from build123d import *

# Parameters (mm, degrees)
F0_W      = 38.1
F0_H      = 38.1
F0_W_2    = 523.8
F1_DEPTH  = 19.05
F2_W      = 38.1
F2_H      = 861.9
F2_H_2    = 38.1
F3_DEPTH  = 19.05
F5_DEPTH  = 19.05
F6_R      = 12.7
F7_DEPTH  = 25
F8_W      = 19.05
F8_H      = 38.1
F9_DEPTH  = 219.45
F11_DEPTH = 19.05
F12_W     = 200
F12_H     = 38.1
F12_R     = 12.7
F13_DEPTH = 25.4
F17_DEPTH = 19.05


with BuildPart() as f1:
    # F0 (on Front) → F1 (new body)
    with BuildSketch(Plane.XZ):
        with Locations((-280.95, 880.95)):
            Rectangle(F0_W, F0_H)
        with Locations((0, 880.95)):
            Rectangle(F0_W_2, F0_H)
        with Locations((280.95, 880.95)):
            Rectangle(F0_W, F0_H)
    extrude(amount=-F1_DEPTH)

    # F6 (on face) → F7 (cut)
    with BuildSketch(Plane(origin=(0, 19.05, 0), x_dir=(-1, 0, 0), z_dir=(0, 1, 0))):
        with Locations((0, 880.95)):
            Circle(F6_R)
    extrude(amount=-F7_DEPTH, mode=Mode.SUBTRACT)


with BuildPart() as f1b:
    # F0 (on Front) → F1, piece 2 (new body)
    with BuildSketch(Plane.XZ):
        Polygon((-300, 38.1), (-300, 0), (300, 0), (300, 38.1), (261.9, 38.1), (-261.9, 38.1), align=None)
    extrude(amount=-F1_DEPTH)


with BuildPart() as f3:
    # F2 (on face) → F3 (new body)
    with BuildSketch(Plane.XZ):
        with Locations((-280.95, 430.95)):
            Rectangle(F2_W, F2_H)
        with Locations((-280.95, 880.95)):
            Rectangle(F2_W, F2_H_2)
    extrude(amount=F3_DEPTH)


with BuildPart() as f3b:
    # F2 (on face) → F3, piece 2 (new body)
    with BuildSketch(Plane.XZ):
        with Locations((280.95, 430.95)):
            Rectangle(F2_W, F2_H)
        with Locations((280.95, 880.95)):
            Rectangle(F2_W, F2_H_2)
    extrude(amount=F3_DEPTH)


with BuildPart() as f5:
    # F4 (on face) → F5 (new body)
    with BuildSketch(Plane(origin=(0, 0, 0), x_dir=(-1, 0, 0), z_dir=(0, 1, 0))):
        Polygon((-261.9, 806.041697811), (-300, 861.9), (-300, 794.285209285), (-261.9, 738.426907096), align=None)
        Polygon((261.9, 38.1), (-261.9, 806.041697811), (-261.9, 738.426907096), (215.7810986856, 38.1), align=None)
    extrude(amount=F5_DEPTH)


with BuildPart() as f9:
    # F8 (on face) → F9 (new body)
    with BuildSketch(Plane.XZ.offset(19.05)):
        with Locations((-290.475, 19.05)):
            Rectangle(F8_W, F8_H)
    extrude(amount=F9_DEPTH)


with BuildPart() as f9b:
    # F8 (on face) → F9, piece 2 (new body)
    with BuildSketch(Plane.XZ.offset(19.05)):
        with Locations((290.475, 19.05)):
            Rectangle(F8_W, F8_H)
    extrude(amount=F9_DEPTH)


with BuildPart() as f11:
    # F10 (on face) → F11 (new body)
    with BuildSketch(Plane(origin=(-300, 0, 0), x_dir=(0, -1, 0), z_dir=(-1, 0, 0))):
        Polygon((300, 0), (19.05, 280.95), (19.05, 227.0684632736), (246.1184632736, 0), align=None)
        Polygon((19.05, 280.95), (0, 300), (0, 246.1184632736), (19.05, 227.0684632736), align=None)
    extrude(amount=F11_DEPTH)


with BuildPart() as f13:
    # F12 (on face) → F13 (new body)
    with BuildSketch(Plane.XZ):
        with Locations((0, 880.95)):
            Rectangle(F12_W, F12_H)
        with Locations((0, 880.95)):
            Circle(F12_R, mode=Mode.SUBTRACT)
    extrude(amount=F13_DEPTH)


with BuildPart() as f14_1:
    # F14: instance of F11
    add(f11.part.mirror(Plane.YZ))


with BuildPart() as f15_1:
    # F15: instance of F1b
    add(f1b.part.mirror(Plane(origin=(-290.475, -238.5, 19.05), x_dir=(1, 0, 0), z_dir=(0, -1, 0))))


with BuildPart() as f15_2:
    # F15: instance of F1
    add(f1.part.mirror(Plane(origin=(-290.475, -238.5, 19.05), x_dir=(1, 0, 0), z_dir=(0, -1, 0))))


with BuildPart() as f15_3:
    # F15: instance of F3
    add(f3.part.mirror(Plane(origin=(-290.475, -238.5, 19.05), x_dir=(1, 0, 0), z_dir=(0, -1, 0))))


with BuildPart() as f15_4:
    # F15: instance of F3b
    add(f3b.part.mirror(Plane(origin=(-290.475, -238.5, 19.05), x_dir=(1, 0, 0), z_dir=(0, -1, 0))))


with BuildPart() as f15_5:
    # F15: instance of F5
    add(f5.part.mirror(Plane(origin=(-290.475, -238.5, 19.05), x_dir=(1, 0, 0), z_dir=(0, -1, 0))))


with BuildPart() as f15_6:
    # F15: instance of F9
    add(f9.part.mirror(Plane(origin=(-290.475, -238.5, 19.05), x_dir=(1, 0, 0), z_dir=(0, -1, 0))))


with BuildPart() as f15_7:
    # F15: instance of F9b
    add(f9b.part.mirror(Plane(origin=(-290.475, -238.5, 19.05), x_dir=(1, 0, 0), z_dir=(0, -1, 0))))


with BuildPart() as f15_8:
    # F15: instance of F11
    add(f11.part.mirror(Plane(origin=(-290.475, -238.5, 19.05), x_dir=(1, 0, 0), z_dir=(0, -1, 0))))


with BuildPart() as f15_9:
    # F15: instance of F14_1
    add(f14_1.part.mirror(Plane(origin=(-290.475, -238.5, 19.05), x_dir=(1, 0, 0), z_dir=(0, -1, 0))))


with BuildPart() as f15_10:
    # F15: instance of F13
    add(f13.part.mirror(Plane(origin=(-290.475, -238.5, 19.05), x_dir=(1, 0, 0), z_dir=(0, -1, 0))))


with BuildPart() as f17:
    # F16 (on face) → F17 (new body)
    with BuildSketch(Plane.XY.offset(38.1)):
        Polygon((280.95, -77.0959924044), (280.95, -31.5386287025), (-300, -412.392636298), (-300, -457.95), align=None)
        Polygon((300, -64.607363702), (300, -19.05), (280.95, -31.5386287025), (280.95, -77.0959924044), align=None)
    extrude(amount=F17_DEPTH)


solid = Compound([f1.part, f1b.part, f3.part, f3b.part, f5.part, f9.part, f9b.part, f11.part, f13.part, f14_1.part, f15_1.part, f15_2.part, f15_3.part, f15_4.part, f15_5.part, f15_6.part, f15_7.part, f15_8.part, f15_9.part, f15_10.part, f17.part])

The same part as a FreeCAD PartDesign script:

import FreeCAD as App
import Part
import Sketcher

doc = App.newDocument("Part")
params = doc.addObject("Spreadsheet::Sheet", "Params")
for row, (alias, value) in enumerate([
    ("sketch1_width", "600 mm"),
    ("sketch1_height", "38.1 mm"),
    ("pad1_length", "19.05 mm"),
    ("sketch2_diameter", "25.4 mm"),
    ("pocket1_length", "25 mm"),
    ("sketch3_width", "600 mm"),
    ("sketch3_height", "38.1 mm"),
    ("pad2_length", "19.05 mm"),
    ("sketch4_height", "900 mm"),
    ("sketch4_width", "38.1 mm"),
    ("pad3_length", "19.05 mm"),
    ("sketch5_height", "900 mm"),
    ("sketch5_width", "38.1 mm"),
    ("pad4_length", "19.05 mm"),
    ("pad5_length", "19.05 mm"),
    ("sketch7_height", "38.1 mm"),
    ("sketch7_width", "19.05 mm"),
    ("pad6_length", "219.45 mm"),
    ("sketch8_height", "38.1 mm"),
    ("sketch8_width", "19.05 mm"),
    ("pad7_length", "219.45 mm"),
    ("pad8_length", "19.05 mm"),
    ("sketch10_diameter", "25.4 mm"),
    ("sketch10_width", "200 mm"),
    ("sketch10_height", "38.1 mm"),
    ("pad9_length", "25.4 mm"),
    ("pad10_length", "19.05 mm"),
], start=1):
    params.set(f"A{row}", alias)
    params.set(f"B{row}", "=" + value)
    params.setAlias(f"B{row}", alias)

body = doc.addObject("PartDesign::Body", "Body")

# Sketch on XZ plane
sketch1 = body.newObject("Sketcher::SketchObject", "Sketch")
sketch1.AttachmentSupport = (doc.getObject("XZ_Plane"), [""])
sketch1.MapMode = "FlatFace"
sketch1.addGeometry([
    Part.LineSegment(App.Vector(-300, 900, 0), App.Vector(-300, 861.9, 0)),
    Part.LineSegment(App.Vector(-300, 861.9, 0), App.Vector(300, 861.9, 0)),
    Part.LineSegment(App.Vector(300, 861.9, 0), App.Vector(300, 900, 0)),
    Part.LineSegment(App.Vector(300, 900, 0), App.Vector(-300, 900, 0)),
], False)
sketch1.addConstraint([
    Sketcher.Constraint("Coincident", 0, 2, 1, 1),
    Sketcher.Constraint("Coincident", 1, 2, 2, 1),
    Sketcher.Constraint("Coincident", 2, 2, 3, 1),
    Sketcher.Constraint("Coincident", 3, 2, 0, 1),
    Sketcher.Constraint("Vertical", 0),
    Sketcher.Constraint("Horizontal", 1),
    Sketcher.Constraint("Vertical", 2),
    Sketcher.Constraint("Horizontal", 3),
    Sketcher.Constraint("DistanceX", 1, 1, 1, 2, 600.0),
    Sketcher.Constraint("DistanceY", 0, 2, 0, 1, 38.1),
    Sketcher.Constraint("DistanceX", 0, 2, -1, 1, 300.0),
    Sketcher.Constraint("DistanceY", -1, 1, 2, 2, 900.0),
])
sketch1.setExpression("Constraints[8]", "Params.sketch1_width")
sketch1.setExpression("Constraints[9]", "Params.sketch1_height")
pad1 = body.newObject("PartDesign::Pad", "Pad")
pad1.Profile = sketch1
pad1.setExpression("Length", "Params.pad1_length")
pad1.Reversed = True

# Sketch on XZ plane
sketch2 = body.newObject("Sketcher::SketchObject", "Sketch001")
sketch2.AttachmentSupport = (doc.getObject("XZ_Plane"), [""])
sketch2.MapMode = "FlatFace"
sketch2.AttachmentOffset = App.Placement(App.Vector(0, 0, -19.05), App.Rotation())
sketch2.addGeometry(Part.Circle(App.Vector(0, 880.95, 0), App.Vector(0, 0, 1), 12.7), False)
sketch2.addConstraint([
    Sketcher.Constraint("PointOnObject", 0, 3, -2),
    Sketcher.Constraint("Diameter", 0, 25.4),
    Sketcher.Constraint("DistanceY", -1, 1, 0, 3, 880.95),
])
sketch2.setExpression("Constraints[1]", "Params.sketch2_diameter")
pocket1 = body.newObject("PartDesign::Pocket", "Pocket")
pocket1.Profile = sketch2
pocket1.setExpression("Length", "Params.pocket1_length")
pocket1.Reversed = True
body2 = doc.addObject("PartDesign::Body", "Body001")

# Sketch on XZ plane
sketch3 = body2.newObject("Sketcher::SketchObject", "Sketch002")
sketch3.AttachmentSupport = (doc.getObject("XZ_Plane001"), [""])
sketch3.MapMode = "FlatFace"
sketch3.addGeometry([
    Part.LineSegment(App.Vector(-300, 38.1, 0), App.Vector(-300, 0, 0)),
    Part.LineSegment(App.Vector(-300, 0, 0), App.Vector(300, 0, 0)),
    Part.LineSegment(App.Vector(300, 0, 0), App.Vector(300, 38.1, 0)),
    Part.LineSegment(App.Vector(300, 38.1, 0), App.Vector(-300, 38.1, 0)),
], False)
sketch3.addConstraint([
    Sketcher.Constraint("Coincident", 0, 2, 1, 1),
    Sketcher.Constraint("Coincident", 1, 2, 2, 1),
    Sketcher.Constraint("Coincident", 2, 2, 3, 1),
    Sketcher.Constraint("Coincident", 3, 2, 0, 1),
    Sketcher.Constraint("Vertical", 0),
    Sketcher.Constraint("Horizontal", 1),
    Sketcher.Constraint("Vertical", 2),
    Sketcher.Constraint("Horizontal", 3),
    Sketcher.Constraint("Symmetric", 0, 2, 1, 2, -1, 1),
    Sketcher.Constraint("DistanceX", 1, 1, 1, 2, 600.0),
    Sketcher.Constraint("DistanceY", 0, 2, 0, 1, 38.1),
])
sketch3.setExpression("Constraints[9]", "Params.sketch3_width")
sketch3.setExpression("Constraints[10]", "Params.sketch3_height")
pad2 = body2.newObject("PartDesign::Pad", "Pad001")
pad2.Profile = sketch3
pad2.setExpression("Length", "Params.pad2_length")
pad2.Reversed = True
body3 = doc.addObject("PartDesign::Body", "Body002")

# Sketch on XZ plane
sketch4 = body3.newObject("Sketcher::SketchObject", "Sketch003")
sketch4.AttachmentSupport = (doc.getObject("XZ_Plane002"), [""])
sketch4.MapMode = "FlatFace"
sketch4.addGeometry([
    Part.LineSegment(App.Vector(-300, 0, 0), App.Vector(-261.9, 0, 0)),
    Part.LineSegment(App.Vector(-261.9, 0, 0), App.Vector(-261.9, 900, 0)),
    Part.LineSegment(App.Vector(-261.9, 900, 0), App.Vector(-300, 900, 0)),
    Part.LineSegment(App.Vector(-300, 900, 0), App.Vector(-300, 0, 0)),
], False)
sketch4.addConstraint([
    Sketcher.Constraint("Coincident", 0, 2, 1, 1),
    Sketcher.Constraint("Coincident", 1, 2, 2, 1),
    Sketcher.Constraint("Coincident", 2, 2, 3, 1),
    Sketcher.Constraint("Coincident", 3, 2, 0, 1),
    Sketcher.Constraint("Horizontal", 0),
    Sketcher.Constraint("Vertical", 1),
    Sketcher.Constraint("Horizontal", 2),
    Sketcher.Constraint("Vertical", 3),
    Sketcher.Constraint("PointOnObject", 0, 2, -1),
    Sketcher.Constraint("DistanceY", 1, 1, 1, 2, 900.0),
    Sketcher.Constraint("DistanceX", 0, 1, 0, 2, 38.1),
    Sketcher.Constraint("DistanceX", 2, 2, -1, 1, 300.0),
])
sketch4.setExpression("Constraints[9]", "Params.sketch4_height")
sketch4.setExpression("Constraints[10]", "Params.sketch4_width")
pad3 = body3.newObject("PartDesign::Pad", "Pad002")
pad3.Profile = sketch4
pad3.setExpression("Length", "Params.pad3_length")
body4 = doc.addObject("PartDesign::Body", "Body003")

# Sketch on XZ plane
sketch5 = body4.newObject("Sketcher::SketchObject", "Sketch004")
sketch5.AttachmentSupport = (doc.getObject("XZ_Plane003"), [""])
sketch5.MapMode = "FlatFace"
sketch5.addGeometry([
    Part.LineSegment(App.Vector(261.9, 0, 0), App.Vector(300, 0, 0)),
    Part.LineSegment(App.Vector(300, 0, 0), App.Vector(300, 900, 0)),
    Part.LineSegment(App.Vector(300, 900, 0), App.Vector(261.9, 900, 0)),
    Part.LineSegment(App.Vector(261.9, 900, 0), App.Vector(261.9, 0, 0)),
], False)
sketch5.addConstraint([
    Sketcher.Constraint("Coincident", 0, 2, 1, 1),
    Sketcher.Constraint("Coincident", 1, 2, 2, 1),
    Sketcher.Constraint("Coincident", 2, 2, 3, 1),
    Sketcher.Constraint("Coincident", 3, 2, 0, 1),
    Sketcher.Constraint("Horizontal", 0),
    Sketcher.Constraint("Vertical", 1),
    Sketcher.Constraint("Horizontal", 2),
    Sketcher.Constraint("Vertical", 3),
    Sketcher.Constraint("PointOnObject", 0, 2, -1),
    Sketcher.Constraint("DistanceY", 1, 1, 1, 2, 900.0),
    Sketcher.Constraint("DistanceX", 0, 1, 0, 2, 38.1),
    Sketcher.Constraint("DistanceX", -1, 1, 0, 2, 300.0),
])
sketch5.setExpression("Constraints[9]", "Params.sketch5_height")
sketch5.setExpression("Constraints[10]", "Params.sketch5_width")
pad4 = body4.newObject("PartDesign::Pad", "Pad003")
pad4.Profile = sketch5
pad4.setExpression("Length", "Params.pad4_length")
body5 = doc.addObject("PartDesign::Body", "Body004")

# Sketch on XZ plane
sketch6 = body5.newObject("Sketcher::SketchObject", "Sketch005")
sketch6.AttachmentSupport = (doc.getObject("XZ_Plane004"), [""])
sketch6.MapMode = "FlatFace"
sketch6.addGeometry([
    Part.LineSegment(App.Vector(300, 861.9, 0), App.Vector(300, 794.285209, 0)),
    Part.LineSegment(App.Vector(300, 794.285209, 0), App.Vector(-215.781099, 38.1, 0)),
    Part.LineSegment(App.Vector(-215.781099, 38.1, 0), App.Vector(-261.9, 38.1, 0)),
    Part.LineSegment(App.Vector(-261.9, 38.1, 0), App.Vector(300, 861.9, 0)),
], False)
sketch6.addConstraint([
    Sketcher.Constraint("Coincident", 0, 2, 1, 1),
    Sketcher.Constraint("Coincident", 1, 2, 2, 1),
    Sketcher.Constraint("Coincident", 2, 2, 3, 1),
    Sketcher.Constraint("Coincident", 3, 2, 0, 1),
    Sketcher.Constraint("Vertical", 0),
    Sketcher.Constraint("Horizontal", 2),
    Sketcher.Constraint("Parallel", 1, 3),
    Sketcher.Constraint("DistanceX", -1, 1, 0, 2, 300.0),
    Sketcher.Constraint("DistanceY", -1, 1, 1, 2, 38.1),
    Sketcher.Constraint("DistanceX", 2, 2, -1, 1, 261.9),
    Sketcher.Constraint("DistanceY", -1, 1, 3, 2, 861.9),
    Sketcher.Constraint("DistanceX", 2, 2, 2, 1, 46.118901),
])
pad5 = body5.newObject("PartDesign::Pad", "Pad004")
pad5.Profile = sketch6
pad5.setExpression("Length", "Params.pad5_length")
pad5.Reversed = True
body6 = doc.addObject("PartDesign::Body", "Body005")

# Sketch on XZ plane
sketch7 = body6.newObject("Sketcher::SketchObject", "Sketch006")
sketch7.AttachmentSupport = (doc.getObject("XZ_Plane005"), [""])
sketch7.MapMode = "FlatFace"
sketch7.AttachmentOffset = App.Placement(App.Vector(0, 0, 19.05), App.Rotation())
sketch7.addGeometry([
    Part.LineSegment(App.Vector(-300, 38.1, 0), App.Vector(-300, 0, 0)),
    Part.LineSegment(App.Vector(-300, 0, 0), App.Vector(-280.95, 0, 0)),
    Part.LineSegment(App.Vector(-280.95, 0, 0), App.Vector(-280.95, 38.1, 0)),
    Part.LineSegment(App.Vector(-280.95, 38.1, 0), App.Vector(-300, 38.1, 0)),
], False)
sketch7.addConstraint([
    Sketcher.Constraint("Coincident", 0, 2, 1, 1),
    Sketcher.Constraint("Coincident", 1, 2, 2, 1),
    Sketcher.Constraint("Coincident", 2, 2, 3, 1),
    Sketcher.Constraint("Coincident", 3, 2, 0, 1),
    Sketcher.Constraint("Vertical", 0),
    Sketcher.Constraint("Horizontal", 1),
    Sketcher.Constraint("Vertical", 2),
    Sketcher.Constraint("Horizontal", 3),
    Sketcher.Constraint("PointOnObject", 0, 2, -1),
    Sketcher.Constraint("DistanceY", 0, 2, 0, 1, 38.1),
    Sketcher.Constraint("DistanceX", 0, 2, -1, 1, 300.0),
    Sketcher.Constraint("DistanceX", 1, 1, 1, 2, 19.05),
])
sketch7.setExpression("Constraints[9]", "Params.sketch7_height")
sketch7.setExpression("Constraints[11]", "Params.sketch7_width")
pad6 = body6.newObject("PartDesign::Pad", "Pad005")
pad6.Profile = sketch7
pad6.setExpression("Length", "Params.pad6_length")
body7 = doc.addObject("PartDesign::Body", "Body006")

# Sketch on XZ plane
sketch8 = body7.newObject("Sketcher::SketchObject", "Sketch007")
sketch8.AttachmentSupport = (doc.getObject("XZ_Plane006"), [""])
sketch8.MapMode = "FlatFace"
sketch8.AttachmentOffset = App.Placement(App.Vector(0, 0, 19.05), App.Rotation())
sketch8.addGeometry([
    Part.LineSegment(App.Vector(280.95, 38.1, 0), App.Vector(280.95, 0, 0)),
    Part.LineSegment(App.Vector(280.95, 0, 0), App.Vector(300, 0, 0)),
    Part.LineSegment(App.Vector(300, 0, 0), App.Vector(300, 38.1, 0)),
    Part.LineSegment(App.Vector(300, 38.1, 0), App.Vector(280.95, 38.1, 0)),
], False)
sketch8.addConstraint([
    Sketcher.Constraint("Coincident", 0, 2, 1, 1),
    Sketcher.Constraint("Coincident", 1, 2, 2, 1),
    Sketcher.Constraint("Coincident", 2, 2, 3, 1),
    Sketcher.Constraint("Coincident", 3, 2, 0, 1),
    Sketcher.Constraint("Vertical", 0),
    Sketcher.Constraint("Horizontal", 1),
    Sketcher.Constraint("Vertical", 2),
    Sketcher.Constraint("Horizontal", 3),
    Sketcher.Constraint("PointOnObject", 0, 2, -1),
    Sketcher.Constraint("DistanceY", 0, 2, 0, 1, 38.1),
    Sketcher.Constraint("DistanceX", -1, 1, 1, 2, 300.0),
    Sketcher.Constraint("DistanceX", 1, 1, 1, 2, 19.05),
])
sketch8.setExpression("Constraints[9]", "Params.sketch8_height")
sketch8.setExpression("Constraints[11]", "Params.sketch8_width")
pad7 = body7.newObject("PartDesign::Pad", "Pad006")
pad7.Profile = sketch8
pad7.setExpression("Length", "Params.pad7_length")
body8 = doc.addObject("PartDesign::Body", "Body007")

# Sketch on YZ plane
sketch9 = body8.newObject("Sketcher::SketchObject", "Sketch008")
sketch9.AttachmentSupport = (doc.getObject("YZ_Plane007"), [""])
sketch9.MapMode = "FlatFace"
sketch9.AttachmentOffset = App.Placement(App.Vector(0, 0, -300), App.Rotation())
sketch9.addGeometry([
    Part.LineSegment(App.Vector(-300, 0, 0), App.Vector(0, 300, 0)),
    Part.LineSegment(App.Vector(0, 300, 0), App.Vector(0, 246.118463, 0)),
    Part.LineSegment(App.Vector(0, 246.118463, 0), App.Vector(-246.118463, 0, 0)),
    Part.LineSegment(App.Vector(-246.118463, 0, 0), App.Vector(-300, 0, 0)),
], False)
sketch9.addConstraint([
    Sketcher.Constraint("Coincident", 0, 2, 1, 1),
    Sketcher.Constraint("Coincident", 1, 2, 2, 1),
    Sketcher.Constraint("Coincident", 2, 2, 3, 1),
    Sketcher.Constraint("Coincident", 3, 2, 0, 1),
    Sketcher.Constraint("Vertical", 1),
    Sketcher.Constraint("Horizontal", 3),
    Sketcher.Constraint("PointOnObject", 0, 2, -2),
    Sketcher.Constraint("PointOnObject", 2, 2, -1),
    Sketcher.Constraint("Parallel", 0, 2),
    Sketcher.Constraint("Equal", 3, 1),
    Sketcher.Constraint("DistanceY", -1, 1, 0, 2, 300.0),
    Sketcher.Constraint("Distance", 2, 348.064069),
])
pad8 = body8.newObject("PartDesign::Pad", "Pad007")
pad8.Profile = sketch9
pad8.setExpression("Length", "Params.pad8_length")
pad8.Reversed = True
body9 = doc.addObject("PartDesign::Body", "Body008")

# Sketch on XZ plane
sketch10 = body9.newObject("Sketcher::SketchObject", "Sketch009")
sketch10.AttachmentSupport = (doc.getObject("XZ_Plane008"), [""])
sketch10.MapMode = "FlatFace"
sketch10.addGeometry([
    Part.LineSegment(App.Vector(-100, 900, 0), App.Vector(-100, 861.9, 0)),  # 0
    Part.LineSegment(App.Vector(-100, 861.9, 0), App.Vector(100, 861.9, 0)),  # 1
    Part.LineSegment(App.Vector(100, 861.9, 0), App.Vector(100, 900, 0)),  # 2
    Part.LineSegment(App.Vector(100, 900, 0), App.Vector(-100, 900, 0)),  # 3
    Part.Circle(App.Vector(0, 880.95, 0), App.Vector(0, 0, 1), 12.7),  # 4
], False)
sketch10.addConstraint([
    Sketcher.Constraint("Coincident", 0, 2, 1, 1),
    Sketcher.Constraint("Coincident", 1, 2, 2, 1),
    Sketcher.Constraint("Coincident", 2, 2, 3, 1),
    Sketcher.Constraint("Coincident", 3, 2, 0, 1),
    Sketcher.Constraint("Vertical", 0),
    Sketcher.Constraint("Horizontal", 1),
    Sketcher.Constraint("Vertical", 2),
    Sketcher.Constraint("Horizontal", 3),
    Sketcher.Constraint("PointOnObject", 4, 3, -2),
    Sketcher.Constraint("Diameter", 4, 25.4),
    Sketcher.Constraint("DistanceX", 1, 1, 1, 2, 200.0),
    Sketcher.Constraint("DistanceY", 0, 2, 0, 1, 38.1),
    Sketcher.Constraint("DistanceX", 0, 2, -1, 1, 100.0),
    Sketcher.Constraint("DistanceY", -1, 1, 2, 2, 900.0),
    Sketcher.Constraint("DistanceY", -1, 1, 4, 3, 880.95),
])
sketch10.setExpression("Constraints[9]", "Params.sketch10_diameter")
sketch10.setExpression("Constraints[10]", "Params.sketch10_width")
sketch10.setExpression("Constraints[11]", "Params.sketch10_height")
pad9 = body9.newObject("PartDesign::Pad", "Pad008")
pad9.Profile = sketch10
pad9.setExpression("Length", "Params.pad9_length")
body10 = doc.addObject("PartDesign::Body", "Body009")
doc.recompute()

mirroring = doc.addObject("Part::Mirroring", "Mirroring")
mirroring.Source = body8
mirroring.Base = App.Vector(0, 0, 0)
mirroring.Normal = App.Vector(1, 0, 0)
body10.BaseFeature = mirroring
doc.recompute()
body11 = doc.addObject("PartDesign::Body", "Body010")
doc.recompute()

mirroring2 = doc.addObject("Part::Mirroring", "Mirroring001")
mirroring2.Source = body2
mirroring2.Base = App.Vector(-290.475, -238.5, 19.05)
mirroring2.Normal = App.Vector(0, -1, 0)
body11.BaseFeature = mirroring2
doc.recompute()
body12 = doc.addObject("PartDesign::Body", "Body011")
doc.recompute()

mirroring3 = doc.addObject("Part::Mirroring", "Mirroring002")
mirroring3.Source = body
mirroring3.Base = App.Vector(-290.475, -238.5, 19.05)
mirroring3.Normal = App.Vector(0, -1, 0)
body12.BaseFeature = mirroring3
doc.recompute()
body13 = doc.addObject("PartDesign::Body", "Body012")
doc.recompute()

mirroring4 = doc.addObject("Part::Mirroring", "Mirroring003")
mirroring4.Source = body3
mirroring4.Base = App.Vector(-290.475, -238.5, 19.05)
mirroring4.Normal = App.Vector(0, -1, 0)
body13.BaseFeature = mirroring4
doc.recompute()
body14 = doc.addObject("PartDesign::Body", "Body013")
doc.recompute()

mirroring5 = doc.addObject("Part::Mirroring", "Mirroring004")
mirroring5.Source = body4
mirroring5.Base = App.Vector(-290.475, -238.5, 19.05)
mirroring5.Normal = App.Vector(0, -1, 0)
body14.BaseFeature = mirroring5
doc.recompute()
body15 = doc.addObject("PartDesign::Body", "Body014")
doc.recompute()

mirroring6 = doc.addObject("Part::Mirroring", "Mirroring005")
mirroring6.Source = body5
mirroring6.Base = App.Vector(-290.475, -238.5, 19.05)
mirroring6.Normal = App.Vector(0, -1, 0)
body15.BaseFeature = mirroring6
doc.recompute()
body16 = doc.addObject("PartDesign::Body", "Body015")
doc.recompute()

mirroring7 = doc.addObject("Part::Mirroring", "Mirroring006")
mirroring7.Source = body6
mirroring7.Base = App.Vector(-290.475, -238.5, 19.05)
mirroring7.Normal = App.Vector(0, -1, 0)
body16.BaseFeature = mirroring7
doc.recompute()
body17 = doc.addObject("PartDesign::Body", "Body016")
doc.recompute()

mirroring8 = doc.addObject("Part::Mirroring", "Mirroring007")
mirroring8.Source = body7
mirroring8.Base = App.Vector(-290.475, -238.5, 19.05)
mirroring8.Normal = App.Vector(0, -1, 0)
body17.BaseFeature = mirroring8
doc.recompute()
body18 = doc.addObject("PartDesign::Body", "Body017")
doc.recompute()

mirroring9 = doc.addObject("Part::Mirroring", "Mirroring008")
mirroring9.Source = body8
mirroring9.Base = App.Vector(-290.475, -238.5, 19.05)
mirroring9.Normal = App.Vector(0, -1, 0)
body18.BaseFeature = mirroring9
doc.recompute()
body19 = doc.addObject("PartDesign::Body", "Body018")
doc.recompute()

mirroring10 = doc.addObject("Part::Mirroring", "Mirroring009")
mirroring10.Source = body10
mirroring10.Base = App.Vector(-290.475, -238.5, 19.05)
mirroring10.Normal = App.Vector(0, -1, 0)
body19.BaseFeature = mirroring10
doc.recompute()
body20 = doc.addObject("PartDesign::Body", "Body019")
doc.recompute()

mirroring11 = doc.addObject("Part::Mirroring", "Mirroring010")
mirroring11.Source = body9
mirroring11.Base = App.Vector(-290.475, -238.5, 19.05)
mirroring11.Normal = App.Vector(0, -1, 0)
body20.BaseFeature = mirroring11
doc.recompute()
body21 = doc.addObject("PartDesign::Body", "Body020")

# Sketch on XY plane
sketch11 = body21.newObject("Sketcher::SketchObject", "Sketch010")
sketch11.AttachmentSupport = (doc.getObject("XY_Plane020"), [""])
sketch11.MapMode = "FlatFace"
sketch11.AttachmentOffset = App.Placement(App.Vector(0, 0, 38.1), App.Rotation())
sketch11.addGeometry([
    Part.LineSegment(App.Vector(280.95, -31.538629, 0), App.Vector(-300, -412.392636, 0)),  # 0
    Part.LineSegment(App.Vector(-300, -412.392636, 0), App.Vector(-300, -457.95, 0)),  # 1
    Part.LineSegment(App.Vector(-300, -457.95, 0), App.Vector(280.95, -77.095992, 0)),  # 2
    Part.LineSegment(App.Vector(280.95, -77.095992, 0), App.Vector(300, -64.607364, 0)),  # 3
    Part.LineSegment(App.Vector(300, -64.607364, 0), App.Vector(300, -19.05, 0)),  # 4
    Part.LineSegment(App.Vector(300, -19.05, 0), App.Vector(280.95, -31.538629, 0)),  # 5
], False)
sketch11.addConstraint([
    Sketcher.Constraint("Coincident", 0, 2, 1, 1),
    Sketcher.Constraint("Coincident", 1, 2, 2, 1),
    Sketcher.Constraint("Coincident", 2, 2, 3, 1),
    Sketcher.Constraint("Coincident", 3, 2, 4, 1),
    Sketcher.Constraint("Coincident", 4, 2, 5, 1),
    Sketcher.Constraint("Coincident", 5, 2, 0, 1),
    Sketcher.Constraint("Vertical", 1),
    Sketcher.Constraint("Vertical", 4),
    Sketcher.Constraint("Parallel", 0, 2),
    Sketcher.Constraint("Parallel", 2, 3),
    Sketcher.Constraint("Parallel", 3, 5),
    Sketcher.Constraint("Vertical", 2, 2, 5, 2),
    Sketcher.Constraint("DistanceX", 0, 2, -1, 1, 300.0),
    Sketcher.Constraint("DistanceX", -1, 1, 3, 2, 300.0),
    Sketcher.Constraint("DistanceY", 1, 2, 4, 2, 438.9),
    Sketcher.Constraint("DistanceY", 1, 2, -1, 1, 457.95),
    Sketcher.Constraint("DistanceX", -1, 1, 2, 2, 280.95),
    Sketcher.Constraint("Distance", 3, 22.778682),
])
pad10 = body21.newObject("PartDesign::Pad", "Pad009")
pad10.Profile = sketch11
pad10.setExpression("Length", "Params.pad10_length")

doc.recompute()
